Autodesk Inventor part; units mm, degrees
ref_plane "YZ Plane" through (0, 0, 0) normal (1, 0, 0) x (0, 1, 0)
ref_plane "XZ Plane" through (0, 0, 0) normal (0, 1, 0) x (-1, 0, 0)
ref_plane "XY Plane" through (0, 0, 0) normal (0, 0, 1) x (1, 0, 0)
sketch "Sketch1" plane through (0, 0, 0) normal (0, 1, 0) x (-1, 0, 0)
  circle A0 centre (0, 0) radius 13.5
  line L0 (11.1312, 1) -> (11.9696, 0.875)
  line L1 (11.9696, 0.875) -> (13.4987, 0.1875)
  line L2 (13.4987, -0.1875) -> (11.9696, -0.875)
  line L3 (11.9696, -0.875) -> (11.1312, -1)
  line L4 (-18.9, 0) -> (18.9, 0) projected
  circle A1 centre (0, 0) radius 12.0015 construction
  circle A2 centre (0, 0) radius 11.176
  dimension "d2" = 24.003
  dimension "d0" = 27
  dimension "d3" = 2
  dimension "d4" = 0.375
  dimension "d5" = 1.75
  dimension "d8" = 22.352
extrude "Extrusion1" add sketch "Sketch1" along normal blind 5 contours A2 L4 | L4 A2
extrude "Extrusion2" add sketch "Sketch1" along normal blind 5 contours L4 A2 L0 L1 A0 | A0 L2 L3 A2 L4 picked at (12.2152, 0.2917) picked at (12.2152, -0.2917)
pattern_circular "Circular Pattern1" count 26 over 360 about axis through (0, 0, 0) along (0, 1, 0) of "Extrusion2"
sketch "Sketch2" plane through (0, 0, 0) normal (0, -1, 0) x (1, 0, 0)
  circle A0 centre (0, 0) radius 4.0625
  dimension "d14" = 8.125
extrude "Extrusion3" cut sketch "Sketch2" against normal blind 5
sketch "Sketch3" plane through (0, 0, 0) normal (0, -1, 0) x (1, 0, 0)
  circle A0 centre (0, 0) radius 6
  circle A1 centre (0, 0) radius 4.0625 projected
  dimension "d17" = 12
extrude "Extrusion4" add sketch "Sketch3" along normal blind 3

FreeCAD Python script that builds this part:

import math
import FreeCAD as App
import Part
import Sketcher

V = App.Vector
Q = App.Units.Quantity

doc = App.newDocument("Part")
params = doc.addObject("Spreadsheet::Sheet", "Params")
for row, (alias, value) in enumerate([
    ("sketch1_diameter", "0.88 in"),
    ("pad1_length", "5 mm"),
    ("sketch2_radius", "0.44 in"),
    ("pad2_length", "5 mm"),
    ("pocket1_length", "5 mm"),
    ("pad3_length", "0.1181102 in"),
], start=1):
    params.set(f"A{row}", alias)
    params.set(f"B{row}", "=" + value)
    params.setAlias(f"B{row}", alias)

body = doc.addObject("PartDesign::Body", "Body")

# Sketch on XZ plane
sketch1 = doc.addObject("Sketcher::SketchObject", "Sketch")
body.addObject(sketch1)
sketch1.AttachmentSupport = (doc.XZ_Plane, [""])
sketch1.MapMode = "FlatFace"
sketch1.addGeometry(Part.Circle(V(0, 0, 0), V(0, 0, 1), 11.176), False)
sketch1.addConstraint([
    Sketcher.Constraint("Coincident", 0, 3, -1, 1),
    Sketcher.Constraint("Diameter", 0, Q("0.88 in")),
])
sketch1.setExpression("Constraints[1]", "Params.sketch1_diameter")
pad1 = doc.addObject("PartDesign::Pad", "Pad")
body.addObject(pad1)
pad1.Profile = sketch1
pad1.setExpression("Length", "Params.pad1_length")
pad1.Reversed = True

# Sketch on XZ plane
sketch2 = doc.addObject("Sketcher::SketchObject", "Sketch001")
body.addObject(sketch2)
sketch2.AttachmentSupport = (doc.XZ_Plane, [""])
sketch2.MapMode = "FlatFace"
sketch2.addGeometry([
    Part.ArcOfCircle(Part.Circle(V(0, 0, 0), V(0, 0, 1), 11.176), math.radians(174.866467), math.radians(185.133533)),  # 0
    Part.LineSegment(V(-11.1312, -1, 0), V(-11.9696, -0.875, 0)),  # 1
    Part.LineSegment(V(-11.9696, -0.875, 0), V(-13.4987, -0.1875, 0)),  # 2
    Part.ArcOfCircle(Part.Circle(V(0, 0, 0), V(0, 0, 1), 13.5), math.radians(179.2042), math.radians(180.7958)),  # 3
    Part.LineSegment(V(-13.4987, 0.1875, 0), V(-11.9696, 0.875, 0)),  # 4
    Part.LineSegment(V(-11.9696, 0.875, 0), V(-11.1312, 1, 0)),  # 5
], False)
sketch2.addConstraint([
    Sketcher.Constraint("Coincident", 0, 2, 1, 1),
    Sketcher.Constraint("Coincident", 1, 2, 2, 1),
    Sketcher.Constraint("Coincident", 2, 2, 3, 2),
    Sketcher.Constraint("Coincident", 3, 1, 4, 1),
    Sketcher.Constraint("Coincident", 4, 2, 5, 1),
    Sketcher.Constraint("Coincident", 5, 2, 0, 1),
    Sketcher.Constraint("Coincident", 0, 3, -1, 1),
    Sketcher.Constraint("Coincident", 3, 3, -1, 1),
    Sketcher.Constraint("Symmetric", 1, 2, 4, 2, -1),
    Sketcher.Constraint("Vertical", 2, 2, 3, 1),
    Sketcher.Constraint("Vertical", 0, 2, 5, 2),
    Sketcher.Constraint("Radius", 0, Q("0.44 in")),
    Sketcher.Constraint("Radius", 3, Q("0.5315 in")),
    Sketcher.Constraint("DistanceY", 1, 2, 4, 2, Q("0.0689 in")),
    Sketcher.Constraint("Angle", 1, Q("171.52 deg")),
    Sketcher.Constraint("Angle", 2, Q("155.7908 deg")),
    Sketcher.Constraint("DistanceY", 2, 2, 3, 1, Q("0.375 mm")),
])
sketch2.setExpression("Constraints[11]", "Params.sketch2_radius")
pad2 = doc.addObject("PartDesign::Pad", "Pad001")
body.addObject(pad2)
pad2.Profile = sketch2
pad2.setExpression("Length", "Params.pad2_length")
pad2.Reversed = True
doc.recompute()

polarpattern = doc.addObject("PartDesign::PolarPattern", "PolarPattern")
body.addObject(polarpattern)
polarpattern.Originals = [pad2]
polarpattern.Axis = (doc.Y_Axis, [""])
polarpattern.Angle = 360
polarpattern.Occurrences = 26
body.Tip = polarpattern

# Sketch on XZ plane
sketch3 = doc.addObject("Sketcher::SketchObject", "Sketch002")
body.addObject(sketch3)
sketch3.AttachmentSupport = (doc.XZ_Plane, [""])
sketch3.MapMode = "FlatFace"
sketch3.addGeometry(Part.Circle(V(0, 0, 0), V(0, 0, 1), 4.0625), False)
sketch3.addConstraint([
    Sketcher.Constraint("Coincident", 0, 3, -1, 1),
    Sketcher.Constraint("Diameter", 0, Q("8.125 mm")),
])
pocket1 = doc.addObject("PartDesign::Pocket", "Pocket")
body.addObject(pocket1)
pocket1.Profile = sketch3
pocket1.setExpression("Length", "Params.pocket1_length")

# Sketch on XZ plane
sketch4 = doc.addObject("Sketcher::SketchObject", "Sketch003")
body.addObject(sketch4)
sketch4.AttachmentSupport = (doc.XZ_Plane, [""])
sketch4.MapMode = "FlatFace"
sketch4.addGeometry([
    Part.Circle(V(0, 0, 0), V(0, 0, 1), 6),
    Part.Circle(V(0, 0, 0), V(0, 0, 1), 4.0625),
], False)
sketch4.addConstraint([
    Sketcher.Constraint("Coincident", 0, 3, -1, 1),
    Sketcher.Constraint("Coincident", 1, 3, -1, 1),
    Sketcher.Constraint("Diameter", 0, Q("12 mm")),
    Sketcher.Constraint("Diameter", 1, Q("8.125 mm")),
])
pad3 = doc.addObject("PartDesign::Pad", "Pad002")
body.addObject(pad3)
pad3.Profile = sketch4
pad3.setExpression("Length", "Params.pad3_length")

doc.recompute()
